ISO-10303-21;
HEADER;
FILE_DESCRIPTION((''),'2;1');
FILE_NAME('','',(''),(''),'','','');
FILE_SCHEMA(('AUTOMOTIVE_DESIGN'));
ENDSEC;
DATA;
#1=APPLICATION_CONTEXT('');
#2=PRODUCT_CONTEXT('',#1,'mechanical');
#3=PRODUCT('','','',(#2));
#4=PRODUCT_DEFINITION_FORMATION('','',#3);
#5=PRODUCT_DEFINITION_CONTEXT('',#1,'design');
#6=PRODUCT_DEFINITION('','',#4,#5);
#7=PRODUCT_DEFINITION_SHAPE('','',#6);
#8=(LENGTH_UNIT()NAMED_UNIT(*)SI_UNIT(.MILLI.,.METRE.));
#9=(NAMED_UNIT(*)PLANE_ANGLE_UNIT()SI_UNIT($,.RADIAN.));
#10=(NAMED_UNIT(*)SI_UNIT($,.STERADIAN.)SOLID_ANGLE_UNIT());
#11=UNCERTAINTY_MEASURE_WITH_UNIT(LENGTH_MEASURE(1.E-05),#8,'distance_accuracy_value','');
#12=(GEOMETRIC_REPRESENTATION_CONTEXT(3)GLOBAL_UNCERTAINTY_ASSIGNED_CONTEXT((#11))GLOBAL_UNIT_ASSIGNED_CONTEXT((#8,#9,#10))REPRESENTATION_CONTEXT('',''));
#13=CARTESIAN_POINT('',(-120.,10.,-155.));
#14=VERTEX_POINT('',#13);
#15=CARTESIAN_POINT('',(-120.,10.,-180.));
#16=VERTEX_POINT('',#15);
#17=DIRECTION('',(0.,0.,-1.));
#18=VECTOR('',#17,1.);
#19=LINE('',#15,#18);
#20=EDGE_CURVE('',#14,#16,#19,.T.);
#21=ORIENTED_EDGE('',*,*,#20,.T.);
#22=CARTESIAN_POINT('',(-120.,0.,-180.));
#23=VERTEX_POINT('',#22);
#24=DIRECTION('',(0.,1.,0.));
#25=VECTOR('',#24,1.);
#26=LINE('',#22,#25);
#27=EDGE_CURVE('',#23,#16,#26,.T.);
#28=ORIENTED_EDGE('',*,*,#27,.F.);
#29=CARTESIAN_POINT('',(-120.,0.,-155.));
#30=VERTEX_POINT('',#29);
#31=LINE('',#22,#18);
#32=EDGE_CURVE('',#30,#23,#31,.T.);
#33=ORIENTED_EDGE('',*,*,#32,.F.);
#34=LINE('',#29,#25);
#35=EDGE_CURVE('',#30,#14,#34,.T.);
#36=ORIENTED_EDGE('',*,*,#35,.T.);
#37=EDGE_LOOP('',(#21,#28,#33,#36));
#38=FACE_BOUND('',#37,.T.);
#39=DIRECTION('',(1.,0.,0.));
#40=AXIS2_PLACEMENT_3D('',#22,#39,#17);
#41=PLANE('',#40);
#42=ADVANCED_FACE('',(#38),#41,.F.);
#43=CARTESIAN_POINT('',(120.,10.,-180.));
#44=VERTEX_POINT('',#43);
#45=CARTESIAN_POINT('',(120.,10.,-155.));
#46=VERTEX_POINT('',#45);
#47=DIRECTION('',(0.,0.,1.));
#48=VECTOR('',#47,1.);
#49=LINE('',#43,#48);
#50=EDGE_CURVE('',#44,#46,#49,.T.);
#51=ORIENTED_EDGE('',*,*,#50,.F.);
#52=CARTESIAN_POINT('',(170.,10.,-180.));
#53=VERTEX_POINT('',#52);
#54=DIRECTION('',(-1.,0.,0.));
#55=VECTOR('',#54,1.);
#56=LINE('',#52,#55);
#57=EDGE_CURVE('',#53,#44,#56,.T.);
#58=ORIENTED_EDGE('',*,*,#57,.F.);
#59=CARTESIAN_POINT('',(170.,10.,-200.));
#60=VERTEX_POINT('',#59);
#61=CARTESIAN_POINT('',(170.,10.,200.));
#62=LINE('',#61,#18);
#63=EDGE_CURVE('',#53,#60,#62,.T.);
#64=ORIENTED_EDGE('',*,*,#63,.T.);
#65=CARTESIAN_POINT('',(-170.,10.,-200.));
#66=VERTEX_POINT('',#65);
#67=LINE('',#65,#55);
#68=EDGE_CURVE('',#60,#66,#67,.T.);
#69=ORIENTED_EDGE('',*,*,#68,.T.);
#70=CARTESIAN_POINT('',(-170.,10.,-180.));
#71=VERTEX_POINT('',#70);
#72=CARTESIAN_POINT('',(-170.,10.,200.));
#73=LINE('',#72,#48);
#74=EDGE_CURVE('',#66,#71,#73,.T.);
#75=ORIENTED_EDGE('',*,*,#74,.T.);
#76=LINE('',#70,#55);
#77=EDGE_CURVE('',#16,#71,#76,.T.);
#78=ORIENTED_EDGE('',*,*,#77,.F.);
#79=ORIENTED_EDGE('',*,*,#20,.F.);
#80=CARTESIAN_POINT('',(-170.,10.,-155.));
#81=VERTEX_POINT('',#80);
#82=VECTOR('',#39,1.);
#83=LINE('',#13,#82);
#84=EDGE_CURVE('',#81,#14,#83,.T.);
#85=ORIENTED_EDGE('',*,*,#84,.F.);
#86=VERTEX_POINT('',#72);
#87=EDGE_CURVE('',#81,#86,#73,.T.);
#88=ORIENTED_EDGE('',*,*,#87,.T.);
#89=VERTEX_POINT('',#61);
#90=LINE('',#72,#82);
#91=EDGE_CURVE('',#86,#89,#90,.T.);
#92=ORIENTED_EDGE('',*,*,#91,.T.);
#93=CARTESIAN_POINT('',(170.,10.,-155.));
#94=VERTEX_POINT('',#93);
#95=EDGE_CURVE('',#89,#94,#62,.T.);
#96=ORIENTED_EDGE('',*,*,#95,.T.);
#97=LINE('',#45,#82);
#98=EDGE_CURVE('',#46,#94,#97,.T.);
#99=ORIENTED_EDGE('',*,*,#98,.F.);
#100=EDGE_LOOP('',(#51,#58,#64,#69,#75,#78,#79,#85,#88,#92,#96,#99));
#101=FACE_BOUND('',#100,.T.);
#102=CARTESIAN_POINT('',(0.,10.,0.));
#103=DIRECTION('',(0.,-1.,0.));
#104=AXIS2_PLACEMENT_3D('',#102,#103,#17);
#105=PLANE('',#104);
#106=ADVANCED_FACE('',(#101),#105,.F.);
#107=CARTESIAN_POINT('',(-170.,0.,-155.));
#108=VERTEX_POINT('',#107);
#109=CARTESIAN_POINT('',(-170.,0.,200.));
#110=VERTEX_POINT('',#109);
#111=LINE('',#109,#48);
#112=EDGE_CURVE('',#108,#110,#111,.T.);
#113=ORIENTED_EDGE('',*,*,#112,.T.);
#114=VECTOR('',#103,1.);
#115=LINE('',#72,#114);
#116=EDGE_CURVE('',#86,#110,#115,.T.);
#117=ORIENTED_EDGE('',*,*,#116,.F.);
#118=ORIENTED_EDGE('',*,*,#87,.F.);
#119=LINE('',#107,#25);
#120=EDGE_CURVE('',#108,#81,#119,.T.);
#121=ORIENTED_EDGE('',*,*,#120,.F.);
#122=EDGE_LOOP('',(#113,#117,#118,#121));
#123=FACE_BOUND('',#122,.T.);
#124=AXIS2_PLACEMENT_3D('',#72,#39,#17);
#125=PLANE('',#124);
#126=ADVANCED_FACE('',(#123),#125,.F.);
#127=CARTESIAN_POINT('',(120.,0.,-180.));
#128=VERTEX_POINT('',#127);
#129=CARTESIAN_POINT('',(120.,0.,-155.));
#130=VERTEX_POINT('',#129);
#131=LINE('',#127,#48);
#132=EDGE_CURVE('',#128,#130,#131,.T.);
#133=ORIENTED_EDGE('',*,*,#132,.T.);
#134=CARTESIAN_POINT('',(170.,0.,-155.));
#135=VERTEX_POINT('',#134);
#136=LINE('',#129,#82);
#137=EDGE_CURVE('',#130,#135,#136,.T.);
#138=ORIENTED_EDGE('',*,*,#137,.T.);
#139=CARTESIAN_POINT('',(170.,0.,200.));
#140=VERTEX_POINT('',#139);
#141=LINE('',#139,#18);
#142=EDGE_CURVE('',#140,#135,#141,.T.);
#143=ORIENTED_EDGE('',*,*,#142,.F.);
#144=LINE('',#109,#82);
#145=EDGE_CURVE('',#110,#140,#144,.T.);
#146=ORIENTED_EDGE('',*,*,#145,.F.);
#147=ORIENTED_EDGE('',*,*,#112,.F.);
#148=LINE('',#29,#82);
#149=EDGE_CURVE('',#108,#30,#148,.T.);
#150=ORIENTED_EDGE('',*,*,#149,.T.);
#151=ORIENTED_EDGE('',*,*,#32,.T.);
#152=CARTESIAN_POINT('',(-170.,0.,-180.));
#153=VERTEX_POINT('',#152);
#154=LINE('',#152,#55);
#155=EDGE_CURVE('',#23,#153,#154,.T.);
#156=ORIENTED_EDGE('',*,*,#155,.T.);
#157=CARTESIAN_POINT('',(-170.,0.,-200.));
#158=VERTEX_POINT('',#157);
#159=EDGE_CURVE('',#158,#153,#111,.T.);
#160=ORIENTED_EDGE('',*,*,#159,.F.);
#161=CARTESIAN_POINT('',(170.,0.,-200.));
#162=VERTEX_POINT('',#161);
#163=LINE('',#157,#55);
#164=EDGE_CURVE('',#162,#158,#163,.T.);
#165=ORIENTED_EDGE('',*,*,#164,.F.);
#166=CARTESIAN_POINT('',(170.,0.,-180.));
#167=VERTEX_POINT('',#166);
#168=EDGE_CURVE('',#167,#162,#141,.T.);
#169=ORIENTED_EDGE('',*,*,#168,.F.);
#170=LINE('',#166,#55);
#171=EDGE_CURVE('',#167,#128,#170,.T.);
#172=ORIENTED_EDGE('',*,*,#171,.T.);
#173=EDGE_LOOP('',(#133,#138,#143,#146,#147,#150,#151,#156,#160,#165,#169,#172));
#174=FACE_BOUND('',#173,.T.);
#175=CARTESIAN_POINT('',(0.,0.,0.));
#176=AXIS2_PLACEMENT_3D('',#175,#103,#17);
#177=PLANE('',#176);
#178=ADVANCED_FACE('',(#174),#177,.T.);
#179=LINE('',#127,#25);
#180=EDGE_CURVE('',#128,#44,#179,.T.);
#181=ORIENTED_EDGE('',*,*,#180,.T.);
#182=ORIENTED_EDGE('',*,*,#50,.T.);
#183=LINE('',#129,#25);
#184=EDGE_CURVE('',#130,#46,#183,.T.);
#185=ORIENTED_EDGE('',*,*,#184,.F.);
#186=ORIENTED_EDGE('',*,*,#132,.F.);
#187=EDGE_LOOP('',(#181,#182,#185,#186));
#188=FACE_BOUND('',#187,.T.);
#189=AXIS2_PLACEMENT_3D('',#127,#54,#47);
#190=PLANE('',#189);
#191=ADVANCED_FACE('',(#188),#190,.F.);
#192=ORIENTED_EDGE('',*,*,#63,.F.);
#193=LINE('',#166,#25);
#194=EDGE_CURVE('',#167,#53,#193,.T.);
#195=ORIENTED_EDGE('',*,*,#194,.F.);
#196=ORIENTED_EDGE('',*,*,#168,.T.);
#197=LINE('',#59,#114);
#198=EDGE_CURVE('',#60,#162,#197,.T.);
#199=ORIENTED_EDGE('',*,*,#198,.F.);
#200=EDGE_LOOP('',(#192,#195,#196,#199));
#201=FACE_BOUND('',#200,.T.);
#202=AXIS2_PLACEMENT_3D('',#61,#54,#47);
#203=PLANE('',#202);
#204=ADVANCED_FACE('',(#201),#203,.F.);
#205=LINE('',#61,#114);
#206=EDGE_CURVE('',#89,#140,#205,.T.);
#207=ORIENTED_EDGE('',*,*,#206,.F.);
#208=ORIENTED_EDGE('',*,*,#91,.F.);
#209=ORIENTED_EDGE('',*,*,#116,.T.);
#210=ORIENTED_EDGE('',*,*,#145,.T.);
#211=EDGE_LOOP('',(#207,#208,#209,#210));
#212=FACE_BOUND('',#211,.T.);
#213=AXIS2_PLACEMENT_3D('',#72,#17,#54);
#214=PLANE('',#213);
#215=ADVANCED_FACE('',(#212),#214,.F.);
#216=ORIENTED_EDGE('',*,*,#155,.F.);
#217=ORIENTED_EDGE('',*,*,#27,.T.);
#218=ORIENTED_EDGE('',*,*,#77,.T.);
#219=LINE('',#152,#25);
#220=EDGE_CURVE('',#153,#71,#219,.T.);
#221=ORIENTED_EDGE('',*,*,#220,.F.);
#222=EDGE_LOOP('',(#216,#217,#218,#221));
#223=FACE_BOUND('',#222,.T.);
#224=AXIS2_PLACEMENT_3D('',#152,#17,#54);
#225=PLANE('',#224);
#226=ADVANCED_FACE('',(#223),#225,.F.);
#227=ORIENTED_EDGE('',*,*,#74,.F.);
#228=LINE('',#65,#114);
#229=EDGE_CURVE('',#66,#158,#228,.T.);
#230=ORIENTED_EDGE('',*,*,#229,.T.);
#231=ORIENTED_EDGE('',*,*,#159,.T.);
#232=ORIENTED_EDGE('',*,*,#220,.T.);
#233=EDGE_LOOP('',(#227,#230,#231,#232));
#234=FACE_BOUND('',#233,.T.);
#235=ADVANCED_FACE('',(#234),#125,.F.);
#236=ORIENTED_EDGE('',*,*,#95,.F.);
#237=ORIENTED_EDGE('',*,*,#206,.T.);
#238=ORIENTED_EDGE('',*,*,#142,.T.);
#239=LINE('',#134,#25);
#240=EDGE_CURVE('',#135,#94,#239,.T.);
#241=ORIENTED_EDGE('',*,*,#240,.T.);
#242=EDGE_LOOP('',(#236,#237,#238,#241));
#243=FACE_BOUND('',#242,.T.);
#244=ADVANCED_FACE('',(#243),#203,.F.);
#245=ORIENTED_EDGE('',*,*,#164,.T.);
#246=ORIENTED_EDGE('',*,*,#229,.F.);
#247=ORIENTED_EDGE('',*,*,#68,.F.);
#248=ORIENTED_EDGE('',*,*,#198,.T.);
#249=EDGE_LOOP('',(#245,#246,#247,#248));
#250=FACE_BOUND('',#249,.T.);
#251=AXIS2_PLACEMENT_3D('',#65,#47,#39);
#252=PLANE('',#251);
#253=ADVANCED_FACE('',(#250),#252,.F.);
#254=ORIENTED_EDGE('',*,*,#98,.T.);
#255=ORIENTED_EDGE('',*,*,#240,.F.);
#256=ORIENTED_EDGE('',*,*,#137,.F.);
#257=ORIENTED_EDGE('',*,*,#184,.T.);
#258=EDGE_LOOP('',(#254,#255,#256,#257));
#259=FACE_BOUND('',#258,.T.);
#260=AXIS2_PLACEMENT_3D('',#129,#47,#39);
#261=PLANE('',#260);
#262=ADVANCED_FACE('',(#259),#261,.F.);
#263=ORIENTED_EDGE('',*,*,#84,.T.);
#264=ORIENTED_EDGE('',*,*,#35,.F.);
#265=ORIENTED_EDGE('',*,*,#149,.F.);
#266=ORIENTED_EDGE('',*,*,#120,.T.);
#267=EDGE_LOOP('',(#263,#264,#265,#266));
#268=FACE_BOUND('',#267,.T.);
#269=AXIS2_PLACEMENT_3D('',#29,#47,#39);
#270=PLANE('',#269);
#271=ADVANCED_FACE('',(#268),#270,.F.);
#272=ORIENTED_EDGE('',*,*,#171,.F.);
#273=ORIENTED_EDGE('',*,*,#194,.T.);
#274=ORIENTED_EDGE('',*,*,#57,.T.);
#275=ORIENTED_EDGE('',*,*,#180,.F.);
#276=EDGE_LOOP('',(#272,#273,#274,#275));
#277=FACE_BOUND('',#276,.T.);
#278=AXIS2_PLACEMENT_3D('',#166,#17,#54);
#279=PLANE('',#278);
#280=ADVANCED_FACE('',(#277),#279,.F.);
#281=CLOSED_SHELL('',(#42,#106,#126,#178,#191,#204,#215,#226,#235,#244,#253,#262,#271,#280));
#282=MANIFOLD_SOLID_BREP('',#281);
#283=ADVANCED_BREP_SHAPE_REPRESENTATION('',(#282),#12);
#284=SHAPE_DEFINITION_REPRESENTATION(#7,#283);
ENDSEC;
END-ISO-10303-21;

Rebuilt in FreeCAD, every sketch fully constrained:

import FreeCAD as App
import Part
import Sketcher

V = App.Vector
Q = App.Units.Quantity


def add_polygon(sketch, points):
    """Adds a closed chain of lines whose ends are joined by coincident constraints."""
    first, n = sketch.GeometryCount, len(points)
    for a, b in zip(points, points[1:] + points[:1]):
        sketch.addGeometry(Part.LineSegment(App.Vector(*a, 0), App.Vector(*b, 0)), False)
    for i in range(n):
        sketch.addConstraint(Sketcher.Constraint("Coincident", first + i, 2, first + (i + 1) % n, 1))

doc = App.newDocument("Part")
body = doc.addObject("PartDesign::Body", "Body")

sketch1 = body.newObject("Sketcher::SketchObject", "Sketch")
sketch1.AttachmentSupport = (doc.getObject("XZ_Plane"), [""])
sketch1.MapMode = "FlatFace"
add_polygon(sketch1, [(-170, -200), (-170, 200), (170, 200), (170, -200)])
sketch1.addConstraint([
    Sketcher.Constraint("Vertical", 0),
    Sketcher.Constraint("Horizontal", 1),
    Sketcher.Constraint("Vertical", 2),
    Sketcher.Constraint("Horizontal", 3),
    Sketcher.Constraint("Symmetric", 0, 2, 2, 2, -1, 1),
    Sketcher.Constraint("DistanceX", 1, 1, 1, 2, Q("340 mm")),
    Sketcher.Constraint("DistanceY", 0, 1, 0, 2, Q("400 mm")),
])
pad1 = body.newObject("PartDesign::Pad", "Pad")
pad1.Profile = sketch1
pad1.Length = 10
pad1.Reversed = True

sketch2 = body.newObject("Sketcher::SketchObject", "Sketch001")
sketch2.AttachmentSupport = (doc.getObject("XZ_Plane"), [""])
sketch2.MapMode = "FlatFace"
sketch2.AttachmentOffset = App.Placement(V(0, 0, -10), App.Rotation())
add_polygon(sketch2, [(-170, -180), (-170, -155), (-120, -155), (-120, -180)])
add_polygon(sketch2, [(120, -180), (120, -155), (170, -155), (170, -180)])
sketch2.addConstraint([
    Sketcher.Constraint("Vertical", 0),
    Sketcher.Constraint("Horizontal", 1),
    Sketcher.Constraint("Vertical", 2),
    Sketcher.Constraint("Horizontal", 3),
    Sketcher.Constraint("Vertical", 4),
    Sketcher.Constraint("Horizontal", 5),
    Sketcher.Constraint("Vertical", 6),
    Sketcher.Constraint("Horizontal", 7),
    Sketcher.Constraint("Symmetric", 1, 2, 4, 2, -2),
    Sketcher.Constraint("Symmetric", 3, 2, 6, 2, -2),
    Sketcher.Constraint("DistanceX", 1, 1, 1, 2, Q("50 mm")),
    Sketcher.Constraint("DistanceY", 0, 1, 0, 2, Q("25 mm")),
    Sketcher.Constraint("DistanceX", 0, 2, -1, 1, Q("170 mm")),
    Sketcher.Constraint("DistanceY", 0, 2, -1, 1, Q("155 mm")),
])
pocket1 = body.newObject("PartDesign::Pocket", "Pocket")
pocket1.Profile = sketch2
pocket1.Length = 10
pocket1.Reversed = True

doc.recompute()
